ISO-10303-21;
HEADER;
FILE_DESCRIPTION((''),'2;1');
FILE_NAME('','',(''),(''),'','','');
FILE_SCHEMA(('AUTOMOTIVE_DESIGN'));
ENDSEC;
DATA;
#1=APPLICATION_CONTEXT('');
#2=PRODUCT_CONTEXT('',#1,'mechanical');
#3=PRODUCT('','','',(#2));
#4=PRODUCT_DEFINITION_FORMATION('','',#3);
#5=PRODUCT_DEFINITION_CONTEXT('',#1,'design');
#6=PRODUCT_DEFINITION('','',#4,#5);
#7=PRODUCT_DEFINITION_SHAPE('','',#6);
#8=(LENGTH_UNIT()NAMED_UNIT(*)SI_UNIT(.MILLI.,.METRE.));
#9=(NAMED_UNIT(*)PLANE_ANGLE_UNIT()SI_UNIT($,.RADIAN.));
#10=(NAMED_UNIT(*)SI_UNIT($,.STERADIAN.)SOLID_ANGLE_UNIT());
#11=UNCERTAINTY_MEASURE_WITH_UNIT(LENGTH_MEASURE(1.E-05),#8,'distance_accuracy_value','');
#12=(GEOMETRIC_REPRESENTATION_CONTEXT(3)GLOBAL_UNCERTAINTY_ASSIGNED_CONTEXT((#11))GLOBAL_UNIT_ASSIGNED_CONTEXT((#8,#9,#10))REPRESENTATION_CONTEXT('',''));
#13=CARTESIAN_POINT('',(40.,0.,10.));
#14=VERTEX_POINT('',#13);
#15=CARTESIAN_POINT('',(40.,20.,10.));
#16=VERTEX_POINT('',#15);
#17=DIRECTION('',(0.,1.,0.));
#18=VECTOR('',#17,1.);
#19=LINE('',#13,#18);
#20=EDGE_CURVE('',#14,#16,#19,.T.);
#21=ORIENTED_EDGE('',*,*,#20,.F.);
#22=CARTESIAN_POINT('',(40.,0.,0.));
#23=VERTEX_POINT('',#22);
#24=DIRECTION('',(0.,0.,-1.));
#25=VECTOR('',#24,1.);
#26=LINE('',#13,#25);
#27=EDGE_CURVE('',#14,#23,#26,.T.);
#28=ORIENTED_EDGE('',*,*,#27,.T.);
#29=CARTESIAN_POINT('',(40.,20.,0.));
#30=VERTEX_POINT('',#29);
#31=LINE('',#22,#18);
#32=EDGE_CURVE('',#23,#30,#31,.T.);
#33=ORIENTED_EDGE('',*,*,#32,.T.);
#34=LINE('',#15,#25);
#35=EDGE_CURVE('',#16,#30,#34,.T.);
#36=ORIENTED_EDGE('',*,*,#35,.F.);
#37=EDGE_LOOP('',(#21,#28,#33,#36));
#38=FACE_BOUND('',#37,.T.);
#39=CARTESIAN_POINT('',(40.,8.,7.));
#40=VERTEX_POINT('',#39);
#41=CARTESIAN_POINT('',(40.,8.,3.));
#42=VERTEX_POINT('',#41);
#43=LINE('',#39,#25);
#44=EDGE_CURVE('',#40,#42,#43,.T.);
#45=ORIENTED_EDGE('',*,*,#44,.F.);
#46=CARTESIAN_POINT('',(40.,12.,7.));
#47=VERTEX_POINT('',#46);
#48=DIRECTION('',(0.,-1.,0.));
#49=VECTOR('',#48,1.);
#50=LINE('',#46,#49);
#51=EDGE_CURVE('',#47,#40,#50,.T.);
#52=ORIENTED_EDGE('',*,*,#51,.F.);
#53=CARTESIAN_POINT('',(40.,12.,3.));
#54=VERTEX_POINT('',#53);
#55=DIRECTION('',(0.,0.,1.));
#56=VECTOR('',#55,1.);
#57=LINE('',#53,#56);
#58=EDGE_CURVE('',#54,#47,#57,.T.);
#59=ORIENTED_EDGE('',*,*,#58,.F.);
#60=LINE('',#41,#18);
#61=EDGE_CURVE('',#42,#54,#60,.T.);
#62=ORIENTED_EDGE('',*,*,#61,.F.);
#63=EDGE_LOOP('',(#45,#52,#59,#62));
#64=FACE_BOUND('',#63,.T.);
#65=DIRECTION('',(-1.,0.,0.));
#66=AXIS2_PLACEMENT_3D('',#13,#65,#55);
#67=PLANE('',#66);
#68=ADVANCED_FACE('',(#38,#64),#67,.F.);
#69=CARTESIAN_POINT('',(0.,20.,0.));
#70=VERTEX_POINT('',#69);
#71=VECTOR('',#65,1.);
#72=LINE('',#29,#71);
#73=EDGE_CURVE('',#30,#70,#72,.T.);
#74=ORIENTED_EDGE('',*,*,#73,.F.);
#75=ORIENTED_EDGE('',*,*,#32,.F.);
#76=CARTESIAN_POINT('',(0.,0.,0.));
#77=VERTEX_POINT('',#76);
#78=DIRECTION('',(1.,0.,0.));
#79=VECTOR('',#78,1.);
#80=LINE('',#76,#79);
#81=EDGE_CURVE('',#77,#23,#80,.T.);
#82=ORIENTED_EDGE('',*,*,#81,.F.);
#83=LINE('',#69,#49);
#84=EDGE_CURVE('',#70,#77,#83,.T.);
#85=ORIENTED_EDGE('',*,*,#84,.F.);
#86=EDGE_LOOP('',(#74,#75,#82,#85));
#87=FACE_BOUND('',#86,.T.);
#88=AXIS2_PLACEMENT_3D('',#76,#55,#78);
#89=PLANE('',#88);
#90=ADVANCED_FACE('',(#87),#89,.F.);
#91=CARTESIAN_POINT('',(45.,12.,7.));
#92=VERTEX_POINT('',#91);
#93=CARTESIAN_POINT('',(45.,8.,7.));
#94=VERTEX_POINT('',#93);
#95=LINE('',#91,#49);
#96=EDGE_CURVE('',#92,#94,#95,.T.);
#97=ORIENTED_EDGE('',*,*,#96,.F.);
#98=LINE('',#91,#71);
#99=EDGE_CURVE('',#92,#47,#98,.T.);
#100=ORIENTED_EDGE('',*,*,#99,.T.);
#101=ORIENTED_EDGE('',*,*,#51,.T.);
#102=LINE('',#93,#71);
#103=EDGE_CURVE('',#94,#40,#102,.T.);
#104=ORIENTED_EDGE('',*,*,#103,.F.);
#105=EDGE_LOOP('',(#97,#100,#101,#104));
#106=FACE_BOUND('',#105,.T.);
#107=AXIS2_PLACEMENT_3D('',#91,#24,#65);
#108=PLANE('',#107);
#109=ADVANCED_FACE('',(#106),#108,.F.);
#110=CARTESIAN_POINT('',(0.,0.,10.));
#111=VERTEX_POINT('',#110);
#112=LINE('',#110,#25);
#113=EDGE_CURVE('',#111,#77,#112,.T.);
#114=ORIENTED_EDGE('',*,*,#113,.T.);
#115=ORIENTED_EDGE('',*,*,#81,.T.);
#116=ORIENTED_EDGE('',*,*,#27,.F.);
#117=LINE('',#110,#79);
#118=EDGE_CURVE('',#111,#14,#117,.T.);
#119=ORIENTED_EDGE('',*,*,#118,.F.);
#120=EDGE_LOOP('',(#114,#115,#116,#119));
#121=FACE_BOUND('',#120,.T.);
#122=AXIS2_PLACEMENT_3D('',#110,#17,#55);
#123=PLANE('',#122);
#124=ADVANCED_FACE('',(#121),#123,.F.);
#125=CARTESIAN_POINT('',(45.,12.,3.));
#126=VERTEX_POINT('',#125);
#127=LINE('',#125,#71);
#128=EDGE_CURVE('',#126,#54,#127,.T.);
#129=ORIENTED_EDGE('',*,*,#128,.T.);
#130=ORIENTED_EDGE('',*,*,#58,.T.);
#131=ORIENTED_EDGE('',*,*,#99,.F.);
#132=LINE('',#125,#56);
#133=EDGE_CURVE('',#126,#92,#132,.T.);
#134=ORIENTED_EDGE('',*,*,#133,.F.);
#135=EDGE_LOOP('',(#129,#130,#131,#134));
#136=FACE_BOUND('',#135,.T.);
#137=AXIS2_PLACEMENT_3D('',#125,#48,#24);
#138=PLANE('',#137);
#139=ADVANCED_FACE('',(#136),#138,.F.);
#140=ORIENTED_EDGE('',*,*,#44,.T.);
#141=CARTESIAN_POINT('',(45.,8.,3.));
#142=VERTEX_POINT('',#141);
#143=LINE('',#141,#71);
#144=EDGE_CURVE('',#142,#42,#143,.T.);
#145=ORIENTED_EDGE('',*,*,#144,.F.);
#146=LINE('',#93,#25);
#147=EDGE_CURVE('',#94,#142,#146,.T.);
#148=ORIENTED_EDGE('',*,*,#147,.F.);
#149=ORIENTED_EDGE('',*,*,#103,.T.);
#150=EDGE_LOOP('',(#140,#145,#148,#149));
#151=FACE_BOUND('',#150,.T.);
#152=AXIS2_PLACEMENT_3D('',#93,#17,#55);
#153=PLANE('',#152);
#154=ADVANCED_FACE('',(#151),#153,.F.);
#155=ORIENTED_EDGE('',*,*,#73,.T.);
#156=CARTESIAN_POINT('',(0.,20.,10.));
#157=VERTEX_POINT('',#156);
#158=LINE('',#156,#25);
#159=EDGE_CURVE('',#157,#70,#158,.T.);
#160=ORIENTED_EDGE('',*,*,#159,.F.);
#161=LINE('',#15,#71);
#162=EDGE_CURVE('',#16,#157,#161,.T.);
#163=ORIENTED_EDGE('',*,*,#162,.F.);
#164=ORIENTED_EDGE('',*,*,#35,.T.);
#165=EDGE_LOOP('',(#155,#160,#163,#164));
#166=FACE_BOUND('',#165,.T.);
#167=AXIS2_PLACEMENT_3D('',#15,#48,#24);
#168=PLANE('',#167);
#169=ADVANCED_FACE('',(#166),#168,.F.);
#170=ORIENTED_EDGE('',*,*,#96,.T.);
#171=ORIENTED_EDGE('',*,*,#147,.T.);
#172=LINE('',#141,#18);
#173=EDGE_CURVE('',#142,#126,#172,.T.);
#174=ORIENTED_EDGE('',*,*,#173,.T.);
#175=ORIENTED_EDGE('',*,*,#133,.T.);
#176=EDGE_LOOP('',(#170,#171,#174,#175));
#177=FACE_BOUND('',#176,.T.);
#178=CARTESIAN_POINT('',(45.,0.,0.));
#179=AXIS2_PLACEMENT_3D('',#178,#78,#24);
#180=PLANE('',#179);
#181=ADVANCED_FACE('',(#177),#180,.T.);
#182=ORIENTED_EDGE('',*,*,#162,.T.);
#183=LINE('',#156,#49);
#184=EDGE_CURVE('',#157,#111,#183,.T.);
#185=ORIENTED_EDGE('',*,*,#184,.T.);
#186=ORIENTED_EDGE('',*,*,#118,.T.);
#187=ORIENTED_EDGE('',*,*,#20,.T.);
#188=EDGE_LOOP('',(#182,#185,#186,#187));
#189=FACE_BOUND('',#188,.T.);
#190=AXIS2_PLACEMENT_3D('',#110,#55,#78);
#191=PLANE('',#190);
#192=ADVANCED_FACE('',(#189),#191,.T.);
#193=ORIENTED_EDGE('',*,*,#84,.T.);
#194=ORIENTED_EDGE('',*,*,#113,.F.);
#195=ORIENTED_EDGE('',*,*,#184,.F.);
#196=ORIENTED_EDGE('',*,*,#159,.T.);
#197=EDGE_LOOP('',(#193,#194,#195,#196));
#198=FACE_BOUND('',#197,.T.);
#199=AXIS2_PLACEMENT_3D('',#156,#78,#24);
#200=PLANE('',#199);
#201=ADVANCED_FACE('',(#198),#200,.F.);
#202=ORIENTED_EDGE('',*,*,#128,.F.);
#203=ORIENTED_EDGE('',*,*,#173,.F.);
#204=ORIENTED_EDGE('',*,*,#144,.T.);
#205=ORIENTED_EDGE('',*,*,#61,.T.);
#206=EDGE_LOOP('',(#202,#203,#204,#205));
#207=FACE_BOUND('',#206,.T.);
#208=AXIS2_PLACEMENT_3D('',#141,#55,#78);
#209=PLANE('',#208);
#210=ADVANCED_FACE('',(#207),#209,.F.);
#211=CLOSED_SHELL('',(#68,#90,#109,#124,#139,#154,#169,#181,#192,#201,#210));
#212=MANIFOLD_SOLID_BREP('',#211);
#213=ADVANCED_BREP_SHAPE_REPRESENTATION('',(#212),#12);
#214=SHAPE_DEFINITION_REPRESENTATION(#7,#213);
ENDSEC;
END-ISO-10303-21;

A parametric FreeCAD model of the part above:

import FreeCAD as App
import Part
import Sketcher

doc = App.newDocument("Part")
body = doc.addObject("PartDesign::Body", "Body")

# Sketch on XY plane
sketch1 = body.newObject("Sketcher::SketchObject", "Sketch")
sketch1.AttachmentSupport = (doc.getObject("XY_Plane"), [""])
sketch1.MapMode = "FlatFace"
sketch1.addGeometry([
    Part.LineSegment(App.Vector(0, 20, 0), App.Vector(0, 0, 0)),
    Part.LineSegment(App.Vector(0, 0, 0), App.Vector(40, 0, 0)),
    Part.LineSegment(App.Vector(40, 0, 0), App.Vector(40, 20, 0)),
    Part.LineSegment(App.Vector(40, 20, 0), App.Vector(0, 20, 0)),
], False)
sketch1.addConstraint([
    Sketcher.Constraint("Coincident", 0, 2, 1, 1),
    Sketcher.Constraint("Coincident", 1, 2, 2, 1),
    Sketcher.Constraint("Coincident", 2, 2, 3, 1),
    Sketcher.Constraint("Coincident", 3, 2, 0, 1),
    Sketcher.Constraint("Vertical", 0),
    Sketcher.Constraint("Horizontal", 1),
    Sketcher.Constraint("Vertical", 2),
    Sketcher.Constraint("Horizontal", 3),
    Sketcher.Constraint("Coincident", 0, 2, -1, 1),
    Sketcher.Constraint("DistanceX", 1, 1, 1, 2, 40.0),
    Sketcher.Constraint("DistanceY", 0, 2, 0, 1, 20.0),
])
pad1 = body.newObject("PartDesign::Pad", "Pad")
pad1.Profile = sketch1
pad1.Length = 10

# Sketch on YZ plane
sketch2 = body.newObject("Sketcher::SketchObject", "Sketch001")
sketch2.AttachmentSupport = (doc.getObject("YZ_Plane"), [""])
sketch2.MapMode = "FlatFace"
sketch2.AttachmentOffset = App.Placement(App.Vector(0, 0, 40), App.Rotation())
sketch2.addGeometry([
    Part.LineSegment(App.Vector(12, 7, 0), App.Vector(8, 7, 0)),
    Part.LineSegment(App.Vector(8, 7, 0), App.Vector(8, 3, 0)),
    Part.LineSegment(App.Vector(8, 3, 0), App.Vector(12, 3, 0)),
    Part.LineSegment(App.Vector(12, 3, 0), App.Vector(12, 7, 0)),
], False)
sketch2.addConstraint([
    Sketcher.Constraint("Coincident", 0, 2, 1, 1),
    Sketcher.Constraint("Coincident", 1, 2, 2, 1),
    Sketcher.Constraint("Coincident", 2, 2, 3, 1),
    Sketcher.Constraint("Coincident", 3, 2, 0, 1),
    Sketcher.Constraint("Horizontal", 0),
    Sketcher.Constraint("Vertical", 1),
    Sketcher.Constraint("Horizontal", 2),
    Sketcher.Constraint("Vertical", 3),
    Sketcher.Constraint("Equal", 2, 1),
    Sketcher.Constraint("DistanceX", 0, 2, 0, 1, 4.0),
    Sketcher.Constraint("DistanceX", -1, 1, 0, 2, 8.0),
    Sketcher.Constraint("DistanceY", -1, 1, 0, 2, 7.0),
])
pad2 = body.newObject("PartDesign::Pad", "Pad001")
pad2.Profile = sketch2
pad2.Length = 5

doc.recompute()
